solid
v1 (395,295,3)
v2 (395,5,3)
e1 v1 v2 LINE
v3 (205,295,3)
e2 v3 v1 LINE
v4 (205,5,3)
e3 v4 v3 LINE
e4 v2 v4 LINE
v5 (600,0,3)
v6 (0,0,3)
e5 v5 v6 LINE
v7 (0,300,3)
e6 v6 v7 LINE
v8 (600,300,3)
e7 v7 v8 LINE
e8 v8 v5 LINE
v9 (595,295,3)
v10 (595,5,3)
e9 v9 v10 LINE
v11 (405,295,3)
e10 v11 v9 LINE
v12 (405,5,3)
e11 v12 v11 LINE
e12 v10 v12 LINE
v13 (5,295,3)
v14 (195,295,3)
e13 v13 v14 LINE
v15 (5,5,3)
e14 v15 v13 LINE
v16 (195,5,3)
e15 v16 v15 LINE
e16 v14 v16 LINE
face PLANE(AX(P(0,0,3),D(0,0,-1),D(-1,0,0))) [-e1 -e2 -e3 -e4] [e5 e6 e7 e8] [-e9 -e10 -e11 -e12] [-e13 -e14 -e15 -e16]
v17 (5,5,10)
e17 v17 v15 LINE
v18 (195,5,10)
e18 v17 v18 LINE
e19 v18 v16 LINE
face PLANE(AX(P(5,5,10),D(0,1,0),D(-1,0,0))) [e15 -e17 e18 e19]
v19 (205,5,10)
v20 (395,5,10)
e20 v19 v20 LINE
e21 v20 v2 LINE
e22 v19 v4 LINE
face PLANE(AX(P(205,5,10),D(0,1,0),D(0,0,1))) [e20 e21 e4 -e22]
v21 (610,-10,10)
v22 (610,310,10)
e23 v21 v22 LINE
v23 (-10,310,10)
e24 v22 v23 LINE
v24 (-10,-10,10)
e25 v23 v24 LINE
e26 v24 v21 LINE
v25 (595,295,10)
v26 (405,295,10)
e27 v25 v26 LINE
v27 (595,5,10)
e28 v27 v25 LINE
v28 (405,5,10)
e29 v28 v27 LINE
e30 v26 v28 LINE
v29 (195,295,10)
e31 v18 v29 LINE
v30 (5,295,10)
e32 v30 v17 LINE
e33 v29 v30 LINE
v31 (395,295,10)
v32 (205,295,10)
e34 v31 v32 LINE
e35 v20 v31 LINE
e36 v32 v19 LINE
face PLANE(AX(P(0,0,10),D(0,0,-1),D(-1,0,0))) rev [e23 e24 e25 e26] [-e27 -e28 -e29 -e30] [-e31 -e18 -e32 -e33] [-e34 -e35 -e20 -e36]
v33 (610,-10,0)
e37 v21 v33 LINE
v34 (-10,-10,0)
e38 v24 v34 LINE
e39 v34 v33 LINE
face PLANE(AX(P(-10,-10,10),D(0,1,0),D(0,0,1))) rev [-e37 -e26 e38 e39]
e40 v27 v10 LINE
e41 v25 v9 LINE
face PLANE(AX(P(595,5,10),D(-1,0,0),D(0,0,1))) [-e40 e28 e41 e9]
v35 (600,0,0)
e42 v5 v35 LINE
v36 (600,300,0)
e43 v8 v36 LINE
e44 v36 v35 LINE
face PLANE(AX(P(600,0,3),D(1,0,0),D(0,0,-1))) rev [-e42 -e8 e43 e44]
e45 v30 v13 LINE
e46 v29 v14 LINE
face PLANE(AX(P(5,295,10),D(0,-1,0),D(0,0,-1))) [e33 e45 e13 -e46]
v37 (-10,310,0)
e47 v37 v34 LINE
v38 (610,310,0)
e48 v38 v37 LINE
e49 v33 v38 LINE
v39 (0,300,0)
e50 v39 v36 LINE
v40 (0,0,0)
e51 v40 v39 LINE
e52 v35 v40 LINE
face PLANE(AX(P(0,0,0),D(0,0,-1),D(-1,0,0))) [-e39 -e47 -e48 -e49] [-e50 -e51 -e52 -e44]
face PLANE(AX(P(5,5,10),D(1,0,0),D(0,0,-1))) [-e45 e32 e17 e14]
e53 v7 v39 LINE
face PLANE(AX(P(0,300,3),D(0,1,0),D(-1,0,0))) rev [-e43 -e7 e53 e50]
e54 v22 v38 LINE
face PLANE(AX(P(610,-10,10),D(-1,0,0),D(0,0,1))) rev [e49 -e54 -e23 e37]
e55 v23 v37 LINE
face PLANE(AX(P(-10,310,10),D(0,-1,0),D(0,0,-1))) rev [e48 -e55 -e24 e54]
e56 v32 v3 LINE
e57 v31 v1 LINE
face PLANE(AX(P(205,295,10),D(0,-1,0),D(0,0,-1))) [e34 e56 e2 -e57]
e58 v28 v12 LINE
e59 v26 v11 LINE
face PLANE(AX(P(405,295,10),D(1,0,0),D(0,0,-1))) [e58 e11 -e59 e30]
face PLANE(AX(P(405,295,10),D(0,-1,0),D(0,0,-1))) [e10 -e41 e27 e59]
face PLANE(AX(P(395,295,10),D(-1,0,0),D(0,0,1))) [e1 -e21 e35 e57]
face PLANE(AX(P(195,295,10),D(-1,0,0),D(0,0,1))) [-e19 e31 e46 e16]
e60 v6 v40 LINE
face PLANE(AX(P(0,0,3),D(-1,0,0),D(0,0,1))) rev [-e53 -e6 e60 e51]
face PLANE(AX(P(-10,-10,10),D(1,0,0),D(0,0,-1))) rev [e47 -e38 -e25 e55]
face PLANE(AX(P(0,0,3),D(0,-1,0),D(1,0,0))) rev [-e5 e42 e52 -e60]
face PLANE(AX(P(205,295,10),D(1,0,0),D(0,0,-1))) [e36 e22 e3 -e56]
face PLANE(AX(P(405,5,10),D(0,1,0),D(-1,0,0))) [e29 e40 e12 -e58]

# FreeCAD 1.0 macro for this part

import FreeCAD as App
import Part
import Sketcher
from FreeCAD import Vector
Q = App.Units.Quantity


def add_polygon(sketch, points):
    """Adds a closed chain of lines whose ends are joined by coincident constraints."""
    first, n = sketch.GeometryCount, len(points)
    for a, b in zip(points, points[1:] + points[:1]):
        sketch.addGeometry(Part.LineSegment(App.Vector(*a, 0), App.Vector(*b, 0)), False)
    for i in range(n):
        sketch.addConstraint(Sketcher.Constraint("Coincident", first + i, 2, first + (i + 1) % n, 1))

doc = App.newDocument("Part")
params = doc.addObject("Spreadsheet::Sheet", "Params")
for row, (alias, value) in enumerate([
    ("sketch1_width", "620 mm"),
    ("sketch1_width2", "190 mm"),
    ("sketch1_height", "320 mm"),
    ("sketch1_height2", "290 mm"),
    ("pad1_length", "10 mm"),
    ("sketch2_width", "600 mm"),
    ("sketch2_height", "300 mm"),
    ("pocket1_length", "3 mm"),
], start=1):
    params.set(f"A{row}", alias)
    params.set(f"B{row}", "=" + value)
    params.setAlias(f"B{row}", alias)

body = doc.addObject("PartDesign::Body", "Body")

# Sketch on XY plane
sketch1 = body.newObject("Sketcher::SketchObject", "Sketch")
sketch1.AttachmentSupport = (doc.getObject("XY_Plane"), [""])
sketch1.MapMode = "FlatFace"
add_polygon(sketch1, [(-10, 310), (-10, -10), (610, -10), (610, 310)])  # lines 0-3
add_polygon(sketch1, [(195, 5), (5, 5), (5, 295), (195, 295)])  # lines 4-7
add_polygon(sketch1, [(395, 5), (205, 5), (205, 295), (395, 295)])  # lines 8-11
add_polygon(sketch1, [(595, 5), (405, 5), (405, 295), (595, 295)])  # lines 12-15
sketch1.addConstraint([
    Sketcher.Constraint("Vertical", 0),
    Sketcher.Constraint("Horizontal", 1),
    Sketcher.Constraint("Vertical", 2),
    Sketcher.Constraint("Horizontal", 3),
    Sketcher.Constraint("Horizontal", 4),
    Sketcher.Constraint("Vertical", 5),
    Sketcher.Constraint("Horizontal", 6),
    Sketcher.Constraint("Vertical", 7),
    Sketcher.Constraint("Horizontal", 8),
    Sketcher.Constraint("Vertical", 9),
    Sketcher.Constraint("Horizontal", 10),
    Sketcher.Constraint("Vertical", 11),
    Sketcher.Constraint("Horizontal", 12),
    Sketcher.Constraint("Vertical", 13),
    Sketcher.Constraint("Horizontal", 14),
    Sketcher.Constraint("Vertical", 15),
    Sketcher.Constraint("Horizontal", 7, 2, 8, 2),
    Sketcher.Constraint("Horizontal", 6, 2, 9, 2),
    Sketcher.Constraint("Horizontal", 11, 2, 12, 2),
    Sketcher.Constraint("Horizontal", 10, 2, 13, 2),
    Sketcher.Constraint("Equal", 6, 8),
    Sketcher.Constraint("Equal", 10, 12),
    Sketcher.Constraint("DistanceX", 1, 1, 1, 2, Q("620 mm")),
    Sketcher.Constraint("DistanceX", 4, 2, 4, 1, Q("190 mm")),
    Sketcher.Constraint("DistanceY", 0, 2, 0, 1, Q("320 mm")),
    Sketcher.Constraint("DistanceY", 5, 1, 5, 2, Q("290 mm")),
    Sketcher.Constraint("DistanceX", 0, 2, -1, 1, Q("10 mm")),
    Sketcher.Constraint("DistanceY", 0, 2, -1, 1, Q("10 mm")),
    Sketcher.Constraint("DistanceX", -1, 1, 4, 2, Q("5 mm")),
    Sketcher.Constraint("DistanceY", -1, 1, 4, 2, Q("5 mm")),
    Sketcher.Constraint("DistanceX", -1, 1, 8, 2, Q("205 mm")),
    Sketcher.Constraint("DistanceX", -1, 1, 12, 2, Q("405 mm")),
])
sketch1.setExpression("Constraints[38]", "Params.sketch1_width")
sketch1.setExpression("Constraints[39]", "Params.sketch1_width2")
sketch1.setExpression("Constraints[40]", "Params.sketch1_height")
sketch1.setExpression("Constraints[41]", "Params.sketch1_height2")
pad1 = body.newObject("PartDesign::Pad", "Pad")
pad1.Profile = sketch1
pad1.setExpression("Length", "Params.pad1_length")

# Sketch on XY plane
sketch2 = body.newObject("Sketcher::SketchObject", "Sketch001")
sketch2.AttachmentSupport = (doc.getObject("XY_Plane"), [""])
sketch2.MapMode = "FlatFace"
add_polygon(sketch2, [(600, 300), (600, 0), (0, 0), (0, 300)])  # lines 0-3
sketch2.addConstraint([
    Sketcher.Constraint("Vertical", 0),
    Sketcher.Constraint("Horizontal", 1),
    Sketcher.Constraint("Vertical", 2),
    Sketcher.Constraint("Horizontal", 3),
    Sketcher.Constraint("Coincident", 1, 2, -1, 1),
    Sketcher.Constraint("DistanceX", 1, 2, 1, 1, Q("600 mm")),
    Sketcher.Constraint("DistanceY", 0, 2, 0, 1, Q("300 mm")),
])
sketch2.setExpression("Constraints[9]", "Params.sketch2_width")
sketch2.setExpression("Constraints[10]", "Params.sketch2_height")
pocket1 = body.newObject("PartDesign::Pocket", "Pocket")
pocket1.Profile = sketch2
pocket1.setExpression("Length", "Params.pocket1_length")
pocket1.Reversed = True

doc.recompute()
